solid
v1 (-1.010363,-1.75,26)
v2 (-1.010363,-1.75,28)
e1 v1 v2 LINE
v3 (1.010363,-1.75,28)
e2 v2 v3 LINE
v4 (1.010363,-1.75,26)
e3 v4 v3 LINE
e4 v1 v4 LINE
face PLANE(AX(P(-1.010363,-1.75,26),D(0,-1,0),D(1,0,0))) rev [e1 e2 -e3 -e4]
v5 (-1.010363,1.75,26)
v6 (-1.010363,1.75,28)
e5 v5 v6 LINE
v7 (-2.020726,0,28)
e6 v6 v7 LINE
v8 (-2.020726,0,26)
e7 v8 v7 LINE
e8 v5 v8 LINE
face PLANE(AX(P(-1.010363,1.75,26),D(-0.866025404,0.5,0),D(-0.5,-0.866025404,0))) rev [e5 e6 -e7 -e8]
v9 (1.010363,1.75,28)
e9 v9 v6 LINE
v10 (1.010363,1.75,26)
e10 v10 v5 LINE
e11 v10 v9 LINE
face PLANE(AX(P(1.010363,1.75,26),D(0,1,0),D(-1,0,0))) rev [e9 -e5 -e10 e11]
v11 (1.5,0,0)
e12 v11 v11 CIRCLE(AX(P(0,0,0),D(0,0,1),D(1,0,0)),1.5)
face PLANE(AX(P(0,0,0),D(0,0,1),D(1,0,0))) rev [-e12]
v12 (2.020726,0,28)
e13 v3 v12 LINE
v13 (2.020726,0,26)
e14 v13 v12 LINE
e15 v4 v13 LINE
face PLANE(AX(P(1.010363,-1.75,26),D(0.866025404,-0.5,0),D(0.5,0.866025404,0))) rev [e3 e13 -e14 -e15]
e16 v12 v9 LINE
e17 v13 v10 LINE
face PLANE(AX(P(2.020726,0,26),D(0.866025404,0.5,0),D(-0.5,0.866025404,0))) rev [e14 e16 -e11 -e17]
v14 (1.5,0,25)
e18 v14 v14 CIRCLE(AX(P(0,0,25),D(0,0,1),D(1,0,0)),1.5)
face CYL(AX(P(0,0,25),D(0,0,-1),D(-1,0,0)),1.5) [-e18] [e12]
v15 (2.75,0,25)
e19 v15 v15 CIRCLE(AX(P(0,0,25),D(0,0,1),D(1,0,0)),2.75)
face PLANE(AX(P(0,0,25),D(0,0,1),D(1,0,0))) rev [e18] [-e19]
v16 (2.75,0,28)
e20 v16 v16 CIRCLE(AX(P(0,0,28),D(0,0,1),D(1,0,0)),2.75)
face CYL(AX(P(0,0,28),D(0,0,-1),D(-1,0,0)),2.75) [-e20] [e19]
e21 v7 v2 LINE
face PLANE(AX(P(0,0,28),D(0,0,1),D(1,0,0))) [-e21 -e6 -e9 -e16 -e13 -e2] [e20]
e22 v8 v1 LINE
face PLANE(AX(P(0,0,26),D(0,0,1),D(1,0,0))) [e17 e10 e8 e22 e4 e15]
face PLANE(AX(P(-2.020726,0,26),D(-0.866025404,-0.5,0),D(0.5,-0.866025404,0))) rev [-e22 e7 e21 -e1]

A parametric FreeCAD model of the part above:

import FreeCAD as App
import Part
import Sketcher
Q = App.Units.Quantity


def add_polygon(sketch, points):
    """Adds a closed chain of lines whose ends are joined by coincident constraints."""
    first, n = sketch.GeometryCount, len(points)
    for a, b in zip(points, points[1:] + points[:1]):
        sketch.addGeometry(Part.LineSegment(App.Vector(*a, 0), App.Vector(*b, 0)), False)
    for i in range(n):
        sketch.addConstraint(Sketcher.Constraint("Coincident", first + i, 2, first + (i + 1) % n, 1))

doc = App.newDocument("Part")
body = doc.addObject("PartDesign::Body", "Body")

sketch1 = body.newObject("Sketcher::SketchObject", "Sketch")
sketch1.AttachmentSupport = (doc.getObject("XY_Plane"), [""])
sketch1.MapMode = "FlatFace"
sketch1.addGeometry(Part.Circle(App.Vector(0, 0, 0), App.Vector(0, 0, 1), 1.5), False)
sketch1.addConstraint(Sketcher.Constraint("Coincident", 0, 3, -1, 1))
sketch1.addConstraint(Sketcher.Constraint("Diameter", 0, 3.0))
pad1 = body.newObject("PartDesign::Pad", "Pad")
pad1.Profile = sketch1
pad1.Length = 25

sketch2 = body.newObject("Sketcher::SketchObject", "Sketch001")
sketch2.AttachmentSupport = (doc.getObject("XY_Plane"), [""])
sketch2.MapMode = "FlatFace"
sketch2.AttachmentOffset = App.Placement(App.Vector(0, 0, 25), App.Rotation())
sketch2.addGeometry(Part.Circle(App.Vector(0, 0, 0), App.Vector(0, 0, 1), 2.75), False)
sketch2.addConstraint(Sketcher.Constraint("Coincident", 0, 3, -1, 1))
sketch2.addConstraint(Sketcher.Constraint("Diameter", 0, 5.5))
pad2 = body.newObject("PartDesign::Pad", "Pad001")
pad2.Profile = sketch2
pad2.Length = 3

sketch3 = body.newObject("Sketcher::SketchObject", "Sketch002")
sketch3.AttachmentSupport = (doc.getObject("XY_Plane"), [""])
sketch3.MapMode = "FlatFace"
sketch3.AttachmentOffset = App.Placement(App.Vector(0, 0, 28), App.Rotation())
add_polygon(sketch3, [(2.020726, 0), (1.010363, 1.75), (-1.010363, 1.75), (-2.020726, 0), (-1.010363, -1.75), (1.010363, -1.75)])
sketch3.addConstraint(Sketcher.Constraint("Horizontal", 1))
sketch3.addConstraint(Sketcher.Constraint("Horizontal", 4))
sketch3.addConstraint(Sketcher.Constraint("Symmetric", 0, 2, 3, 2, -1, 1))
sketch3.addConstraint(Sketcher.Constraint("Symmetric", 2, 2, 5, 2, -1, 1))
sketch3.addConstraint(Sketcher.Constraint("PointOnObject", 2, 2, -1))
sketch3.addConstraint(Sketcher.Constraint("Parallel", 2, 5))
sketch3.addConstraint(Sketcher.Constraint("Vertical", 1, 2, 3, 2))
sketch3.addConstraint(Sketcher.Constraint("Angle", 0, Q("120 deg")))
sketch3.addConstraint(Sketcher.Constraint("DistanceY", 3, 2, 1, 2, 3.5))
sketch3.addConstraint(Sketcher.Constraint("DistanceX", 1, 2, 1, 1, 2.020726))
pocket1 = body.newObject("PartDesign::Pocket", "Pocket")
pocket1.Profile = sketch3
pocket1.Length = 2

doc.recompute()
